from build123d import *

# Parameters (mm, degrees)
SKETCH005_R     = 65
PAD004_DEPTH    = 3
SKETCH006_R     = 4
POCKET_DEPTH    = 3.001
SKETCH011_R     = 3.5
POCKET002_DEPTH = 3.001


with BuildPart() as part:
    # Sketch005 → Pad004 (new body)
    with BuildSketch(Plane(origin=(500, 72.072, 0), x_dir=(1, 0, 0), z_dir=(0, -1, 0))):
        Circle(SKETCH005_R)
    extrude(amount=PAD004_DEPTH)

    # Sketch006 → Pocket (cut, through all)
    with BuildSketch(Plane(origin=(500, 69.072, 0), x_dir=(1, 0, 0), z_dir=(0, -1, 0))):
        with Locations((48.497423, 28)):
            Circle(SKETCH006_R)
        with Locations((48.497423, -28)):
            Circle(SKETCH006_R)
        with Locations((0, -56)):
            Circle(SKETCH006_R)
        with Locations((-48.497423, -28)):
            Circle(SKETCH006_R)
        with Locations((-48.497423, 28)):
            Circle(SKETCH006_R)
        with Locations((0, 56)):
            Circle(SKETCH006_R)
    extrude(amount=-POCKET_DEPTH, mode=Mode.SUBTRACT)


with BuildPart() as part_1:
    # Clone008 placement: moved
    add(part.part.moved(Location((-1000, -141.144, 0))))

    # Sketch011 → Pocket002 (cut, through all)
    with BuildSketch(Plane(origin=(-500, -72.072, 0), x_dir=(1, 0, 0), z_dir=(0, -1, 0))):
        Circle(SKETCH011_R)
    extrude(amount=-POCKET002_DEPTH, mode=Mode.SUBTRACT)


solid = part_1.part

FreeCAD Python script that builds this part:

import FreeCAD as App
import Part
import Sketcher

V = App.Vector
Q = App.Units.Quantity

doc = App.newDocument("Part")
params = doc.addObject("Spreadsheet::Sheet", "Params")
for row, (alias, value) in enumerate([
    ("sketch1_diameter", "130 mm"),
    ("pad1_length", "3 mm"),
    ("sketch2_diameter", "8 mm"),
    ("sketch3_diameter", "7 mm"),
], start=1):
    params.set(f"A{row}", alias)
    params.set(f"B{row}", "=" + value)
    params.setAlias(f"B{row}", alias)

body = doc.addObject("PartDesign::Body", "Body")

sketch1 = doc.addObject("Sketcher::SketchObject", "Sketch")
body.addObject(sketch1)
sketch1.AttachmentSupport = (doc.XZ_Plane, [""])
sketch1.MapMode = "FlatFace"
sketch1.AttachmentOffset = App.Placement(V(0, 0, -72.072), App.Rotation())
sketch1.addGeometry(Part.Circle(V(500, 0, 0), V(0, 0, 1), 65), False)
sketch1.addConstraint([
    Sketcher.Constraint("PointOnObject", 0, 3, -1),
    Sketcher.Constraint("Diameter", 0, Q("130 mm")),
    Sketcher.Constraint("DistanceX", -1, 1, 0, 3, Q("500 mm")),
])
sketch1.setExpression("Constraints[1]", "Params.sketch1_diameter")
pad1 = doc.addObject("PartDesign::Pad", "Pad")
body.addObject(pad1)
pad1.Profile = sketch1
pad1.setExpression("Length", "Params.pad1_length")

sketch2 = doc.addObject("Sketcher::SketchObject", "Sketch001")
body.addObject(sketch2)
sketch2.AttachmentSupport = (doc.XZ_Plane, [""])
sketch2.MapMode = "FlatFace"
sketch2.AttachmentOffset = App.Placement(V(0, 0, -69.072), App.Rotation())
sketch2.addGeometry([
    Part.Circle(V(548.497423, 28, 0), V(0, 0, 1), 4),
    Part.Circle(V(548.497423, -28, 0), V(0, 0, 1), 4),
    Part.Circle(V(500, -56, 0), V(0, 0, 1), 4),
    Part.Circle(V(451.502577, -28, 0), V(0, 0, 1), 4),
    Part.Circle(V(451.502577, 28, 0), V(0, 0, 1), 4),
    Part.Circle(V(500, 56, 0), V(0, 0, 1), 4),
], False)
sketch2.addConstraint([
    Sketcher.Constraint("Equal", 0, 1),
    Sketcher.Constraint("Equal", 1, 2),
    Sketcher.Constraint("Equal", 2, 3),
    Sketcher.Constraint("Equal", 3, 4),
    Sketcher.Constraint("Equal", 4, 5),
    Sketcher.Constraint("Symmetric", 0, 3, 1, 3, -1),
    Sketcher.Constraint("Symmetric", 3, 3, 4, 3, -1),
    Sketcher.Constraint("Symmetric", 2, 3, 5, 3, -1),
    Sketcher.Constraint("Horizontal", 1, 3, 3, 3),
    Sketcher.Constraint("Diameter", 0, Q("8 mm")),
    Sketcher.Constraint("DistanceY", -1, 1, 0, 3, Q("28 mm")),
    Sketcher.Constraint("DistanceX", -1, 1, 2, 3, Q("500 mm")),
    Sketcher.Constraint("DistanceY", 2, 3, -1, 1, Q("56 mm")),
    Sketcher.Constraint("DistanceX", -1, 1, 0, 3, Q("548.497423 mm")),
    Sketcher.Constraint("DistanceX", -1, 1, 3, 3, Q("451.502577 mm")),
])
sketch2.setExpression("Constraints[9]", "Params.sketch2_diameter")
pocket1 = doc.addObject("PartDesign::Pocket", "Pocket")
body.addObject(pocket1)
pocket1.Profile = sketch2
pocket1.Type = "ThroughAll"
body2 = doc.addObject("PartDesign::Body", "Body001")
doc.recompute()

body.Placement = App.Placement(V(-1000, -141.144, 0), App.Rotation(V(0, 0, 1), 0))
boolean = doc.addObject("PartDesign::Boolean", "Boolean")
body2.addObject(boolean)
boolean.Type = "Fuse"
boolean.addObjects([body])

sketch3 = doc.addObject("Sketcher::SketchObject", "Sketch002")
body2.addObject(sketch3)
sketch3.AttachmentSupport = (doc.getObject("XZ_Plane001"), [""])
sketch3.MapMode = "FlatFace"
sketch3.AttachmentOffset = App.Placement(V(0, 0, 72.072), App.Rotation())
sketch3.addGeometry(Part.Circle(V(-500, 0, 0), V(0, 0, 1), 3.5), False)
sketch3.addConstraint([
    Sketcher.Constraint("PointOnObject", 0, 3, -1),
    Sketcher.Constraint("Diameter", 0, Q("7 mm")),
    Sketcher.Constraint("DistanceX", 0, 3, -1, 1, Q("500 mm")),
])
sketch3.setExpression("Constraints[1]", "Params.sketch3_diameter")
pocket2 = doc.addObject("PartDesign::Pocket", "Pocket001")
body2.addObject(pocket2)
pocket2.Profile = sketch3
pocket2.Type = "ThroughAll"

doc.recompute()
